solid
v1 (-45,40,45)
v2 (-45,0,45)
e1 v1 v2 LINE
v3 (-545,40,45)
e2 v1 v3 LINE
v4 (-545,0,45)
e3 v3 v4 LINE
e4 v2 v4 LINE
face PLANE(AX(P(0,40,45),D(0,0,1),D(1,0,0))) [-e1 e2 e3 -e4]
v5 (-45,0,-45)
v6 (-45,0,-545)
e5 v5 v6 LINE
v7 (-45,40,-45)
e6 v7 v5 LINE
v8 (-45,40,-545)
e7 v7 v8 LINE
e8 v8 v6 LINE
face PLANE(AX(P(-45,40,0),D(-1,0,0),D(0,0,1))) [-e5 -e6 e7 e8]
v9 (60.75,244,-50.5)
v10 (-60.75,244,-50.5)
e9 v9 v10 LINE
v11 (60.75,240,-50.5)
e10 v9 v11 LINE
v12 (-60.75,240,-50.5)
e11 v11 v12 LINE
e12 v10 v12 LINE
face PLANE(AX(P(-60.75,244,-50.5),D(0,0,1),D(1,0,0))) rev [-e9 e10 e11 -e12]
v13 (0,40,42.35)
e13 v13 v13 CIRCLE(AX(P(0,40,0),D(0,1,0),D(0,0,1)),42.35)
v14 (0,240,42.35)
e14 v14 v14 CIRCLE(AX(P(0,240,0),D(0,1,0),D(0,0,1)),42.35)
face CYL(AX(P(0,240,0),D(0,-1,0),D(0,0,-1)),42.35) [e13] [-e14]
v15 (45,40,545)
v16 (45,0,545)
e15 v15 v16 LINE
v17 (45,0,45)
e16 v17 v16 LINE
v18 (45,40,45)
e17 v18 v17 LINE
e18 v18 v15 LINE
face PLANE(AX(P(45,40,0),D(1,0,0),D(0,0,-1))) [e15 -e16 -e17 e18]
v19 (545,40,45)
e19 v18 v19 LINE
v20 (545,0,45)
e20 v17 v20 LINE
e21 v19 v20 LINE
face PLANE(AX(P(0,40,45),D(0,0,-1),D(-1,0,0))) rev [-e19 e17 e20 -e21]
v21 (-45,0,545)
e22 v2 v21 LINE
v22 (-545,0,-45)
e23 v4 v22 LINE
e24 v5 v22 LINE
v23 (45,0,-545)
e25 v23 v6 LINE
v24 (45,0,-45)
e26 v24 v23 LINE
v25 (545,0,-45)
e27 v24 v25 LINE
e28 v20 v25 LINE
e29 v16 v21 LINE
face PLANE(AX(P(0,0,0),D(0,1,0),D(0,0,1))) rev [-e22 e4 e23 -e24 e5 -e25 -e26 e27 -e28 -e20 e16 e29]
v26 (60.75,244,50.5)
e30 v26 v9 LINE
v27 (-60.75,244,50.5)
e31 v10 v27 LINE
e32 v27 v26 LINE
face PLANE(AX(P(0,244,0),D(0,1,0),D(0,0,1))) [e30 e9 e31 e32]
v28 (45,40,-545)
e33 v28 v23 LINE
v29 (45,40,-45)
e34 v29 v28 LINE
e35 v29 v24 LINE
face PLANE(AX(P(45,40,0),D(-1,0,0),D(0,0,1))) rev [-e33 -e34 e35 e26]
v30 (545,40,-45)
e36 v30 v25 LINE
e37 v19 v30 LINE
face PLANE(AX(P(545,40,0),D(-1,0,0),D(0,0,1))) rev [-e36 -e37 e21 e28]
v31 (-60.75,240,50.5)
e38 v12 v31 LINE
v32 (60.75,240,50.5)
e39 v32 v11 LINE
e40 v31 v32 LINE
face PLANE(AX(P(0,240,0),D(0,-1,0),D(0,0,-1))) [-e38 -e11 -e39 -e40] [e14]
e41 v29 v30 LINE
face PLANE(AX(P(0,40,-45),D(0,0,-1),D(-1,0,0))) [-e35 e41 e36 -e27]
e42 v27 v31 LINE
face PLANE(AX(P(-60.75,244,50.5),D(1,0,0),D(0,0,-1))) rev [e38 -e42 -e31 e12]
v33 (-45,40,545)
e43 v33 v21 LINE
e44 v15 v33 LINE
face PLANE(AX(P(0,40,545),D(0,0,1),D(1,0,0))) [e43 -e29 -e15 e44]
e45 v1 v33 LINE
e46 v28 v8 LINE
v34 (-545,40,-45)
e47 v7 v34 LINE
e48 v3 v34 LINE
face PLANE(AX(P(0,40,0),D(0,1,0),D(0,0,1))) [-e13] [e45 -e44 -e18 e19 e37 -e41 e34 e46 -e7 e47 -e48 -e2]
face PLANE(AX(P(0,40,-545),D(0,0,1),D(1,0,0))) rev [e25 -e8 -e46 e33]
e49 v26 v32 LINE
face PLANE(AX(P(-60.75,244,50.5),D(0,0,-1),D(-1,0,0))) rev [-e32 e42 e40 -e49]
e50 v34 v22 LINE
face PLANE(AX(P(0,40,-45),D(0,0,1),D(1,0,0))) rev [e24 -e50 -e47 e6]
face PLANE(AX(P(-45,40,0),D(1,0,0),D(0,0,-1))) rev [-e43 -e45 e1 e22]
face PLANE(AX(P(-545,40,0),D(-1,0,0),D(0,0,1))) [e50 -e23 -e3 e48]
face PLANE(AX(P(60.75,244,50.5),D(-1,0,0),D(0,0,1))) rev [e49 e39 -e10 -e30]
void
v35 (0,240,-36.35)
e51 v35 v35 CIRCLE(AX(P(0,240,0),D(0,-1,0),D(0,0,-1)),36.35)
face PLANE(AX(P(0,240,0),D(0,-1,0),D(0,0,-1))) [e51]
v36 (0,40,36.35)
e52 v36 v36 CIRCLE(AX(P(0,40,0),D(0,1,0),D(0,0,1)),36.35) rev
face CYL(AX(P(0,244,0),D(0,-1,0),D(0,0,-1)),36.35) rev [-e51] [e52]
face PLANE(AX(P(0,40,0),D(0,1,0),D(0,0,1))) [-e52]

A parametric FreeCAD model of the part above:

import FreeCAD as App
import Part
import Sketcher

V = App.Vector

doc = App.newDocument("Part")
params = doc.addObject("Spreadsheet::Sheet", "Params")
for row, (alias, value) in enumerate([
    ("sketch1_width", "500 mm"),
    ("sketch1_width2", "90 mm"),
    ("pad1_length", "40 mm"),
    ("sketch2_diameter", "84.7 mm"),
    ("pad2_length", "200 mm"),
    ("sketch3_diameter", "78.7 mm"),
    ("pocket1_length", "200 mm"),
    ("sketch4_diameter", "78.7 mm"),
    ("sketch4_diameter2", "72.7 mm"),
    ("pad3_length", "4 mm"),
    ("pad3_length2", "200 mm"),
    ("sketch5_height", "101 mm"),
    ("sketch5_width", "121.5 mm"),
    ("pad4_length", "4 mm"),
], start=1):
    params.set(f"A{row}", alias)
    params.set(f"B{row}", "=" + value)
    params.setAlias(f"B{row}", alias)

body = doc.addObject("PartDesign::Body", "Body")

# Sketch on XZ plane
sketch1 = body.newObject("Sketcher::SketchObject", "Sketch")
sketch1.AttachmentSupport = (doc.getObject("XZ_Plane"), [""])
sketch1.MapMode = "FlatFace"
sketch1.addGeometry(Part.LineSegment(V(45, 545, 0), V(45, 45, 0)), False)
sketch1.addGeometry(Part.LineSegment(V(45, 45, 0), V(545, 45, 0)), False)
sketch1.addGeometry(Part.LineSegment(V(545, 45, 0), V(545, -45, 0)), False)
sketch1.addGeometry(Part.LineSegment(V(545, -45, 0), V(45, -45, 0)), False)
sketch1.addGeometry(Part.LineSegment(V(45, -45, 0), V(45, -545, 0)), False)
sketch1.addGeometry(Part.LineSegment(V(45, -545, 0), V(-45, -545, 0)), False)
sketch1.addGeometry(Part.LineSegment(V(-45, -545, 0), V(-45, -45, 0)), False)
sketch1.addGeometry(Part.LineSegment(V(-45, -45, 0), V(-545, -45, 0)), False)
sketch1.addGeometry(Part.LineSegment(V(-545, -45, 0), V(-545, 45, 0)), False)
sketch1.addGeometry(Part.LineSegment(V(-545, 45, 0), V(-45, 45, 0)), False)
sketch1.addGeometry(Part.LineSegment(V(-45, 45, 0), V(-45, 545, 0)), False)
sketch1.addGeometry(Part.LineSegment(V(-45, 545, 0), V(45, 545, 0)), False)
sketch1.addConstraint(Sketcher.Constraint("Coincident", 0, 2, 1, 1))
sketch1.addConstraint(Sketcher.Constraint("Coincident", 1, 2, 2, 1))
sketch1.addConstraint(Sketcher.Constraint("Coincident", 2, 2, 3, 1))
sketch1.addConstraint(Sketcher.Constraint("Coincident", 3, 2, 4, 1))
sketch1.addConstraint(Sketcher.Constraint("Coincident", 4, 2, 5, 1))
sketch1.addConstraint(Sketcher.Constraint("Coincident", 5, 2, 6, 1))
sketch1.addConstraint(Sketcher.Constraint("Coincident", 6, 2, 7, 1))
sketch1.addConstraint(Sketcher.Constraint("Coincident", 7, 2, 8, 1))
sketch1.addConstraint(Sketcher.Constraint("Coincident", 8, 2, 9, 1))
sketch1.addConstraint(Sketcher.Constraint("Coincident", 9, 2, 10, 1))
sketch1.addConstraint(Sketcher.Constraint("Coincident", 10, 2, 11, 1))
sketch1.addConstraint(Sketcher.Constraint("Coincident", 11, 2, 0, 1))
sketch1.addConstraint(Sketcher.Constraint("Vertical", 0))
sketch1.addConstraint(Sketcher.Constraint("Horizontal", 1))
sketch1.addConstraint(Sketcher.Constraint("Vertical", 2))
sketch1.addConstraint(Sketcher.Constraint("Horizontal", 3))
sketch1.addConstraint(Sketcher.Constraint("Vertical", 4))
sketch1.addConstraint(Sketcher.Constraint("Horizontal", 5))
sketch1.addConstraint(Sketcher.Constraint("Vertical", 6))
sketch1.addConstraint(Sketcher.Constraint("Horizontal", 7))
sketch1.addConstraint(Sketcher.Constraint("Vertical", 8))
sketch1.addConstraint(Sketcher.Constraint("Horizontal", 9))
sketch1.addConstraint(Sketcher.Constraint("Vertical", 10))
sketch1.addConstraint(Sketcher.Constraint("Horizontal", 11))
sketch1.addConstraint(Sketcher.Constraint("Symmetric", 0, 2, 6, 2, -1, 1))
sketch1.addConstraint(Sketcher.Constraint("Symmetric", 2, 2, 8, 2, -1, 1))
sketch1.addConstraint(Sketcher.Constraint("Symmetric", 4, 2, 10, 2, -1, 1))
sketch1.addConstraint(Sketcher.Constraint("Symmetric", 3, 2, 6, 2, -2))
sketch1.addConstraint(Sketcher.Constraint("Equal", 9, 0))
sketch1.addConstraint(Sketcher.Constraint("Equal", 11, 2))
sketch1.addConstraint(Sketcher.Constraint("DistanceX", 1, 1, 1, 2, 500.0))
sketch1.addConstraint(Sketcher.Constraint("DistanceX", 5, 2, 5, 1, 90.0))
sketch1.setExpression("Constraints[30]", "Params.sketch1_width")
sketch1.setExpression("Constraints[31]", "Params.sketch1_width2")
pad1 = body.newObject("PartDesign::Pad", "Pad")
pad1.Profile = sketch1
pad1.setExpression("Length", "Params.pad1_length")
pad1.Reversed = True

# Sketch on XZ plane
sketch2 = body.newObject("Sketcher::SketchObject", "Sketch001")
sketch2.AttachmentSupport = (doc.getObject("XZ_Plane"), [""])
sketch2.MapMode = "FlatFace"
sketch2.AttachmentOffset = App.Placement(V(0, 0, -40), App.Rotation())
sketch2.addGeometry(Part.Circle(V(0, 0, 0), V(0, 0, 1), 42), False)
sketch2.addConstraint(Sketcher.Constraint("Coincident", 0, 3, -1, 1))
sketch2.addConstraint(Sketcher.Constraint("Diameter", 0, 84.7))
sketch2.setExpression("Constraints[1]", "Params.sketch2_diameter")
pad2 = body.newObject("PartDesign::Pad", "Pad001")
pad2.Profile = sketch2
pad2.setExpression("Length", "Params.pad2_length")
pad2.Reversed = True

# Sketch on XZ plane
sketch3 = body.newObject("Sketcher::SketchObject", "Sketch002")
sketch3.AttachmentSupport = (doc.getObject("XZ_Plane"), [""])
sketch3.MapMode = "FlatFace"
sketch3.AttachmentOffset = App.Placement(V(0, 0, -240), App.Rotation())
sketch3.addGeometry(Part.Circle(V(0, 0, 0), V(0, 0, 1), 39), False)
sketch3.addConstraint(Sketcher.Constraint("Coincident", 0, 3, -1, 1))
sketch3.addConstraint(Sketcher.Constraint("Diameter", 0, 78.7))
sketch3.setExpression("Constraints[1]", "Params.sketch3_diameter")
pocket1 = body.newObject("PartDesign::Pocket", "Pocket")
pocket1.Profile = sketch3
pocket1.setExpression("Length", "Params.pocket1_length")
pocket1.Reversed = True

# Sketch on XZ plane
sketch4 = body.newObject("Sketcher::SketchObject", "Sketch003")
sketch4.AttachmentSupport = (doc.getObject("XZ_Plane"), [""])
sketch4.MapMode = "FlatFace"
sketch4.AttachmentOffset = App.Placement(V(0, 0, -240), App.Rotation())
sketch4.addGeometry(Part.Circle(V(0, 0, 0), V(0, 0, 1), 39), False)
sketch4.addGeometry(Part.Circle(V(0, 0, 0), V(0, 0, 1), 36), False)
sketch4.addConstraint(Sketcher.Constraint("Coincident", 0, 3, -1, 1))
sketch4.addConstraint(Sketcher.Constraint("Coincident", 1, 3, -1, 1))
sketch4.addConstraint(Sketcher.Constraint("Diameter", 0, 78.7))
sketch4.addConstraint(Sketcher.Constraint("Diameter", 1, 72.7))
sketch4.setExpression("Constraints[2]", "Params.sketch4_diameter")
sketch4.setExpression("Constraints[3]", "Params.sketch4_diameter2")
pad3 = body.newObject("PartDesign::Pad", "Pad002")
pad3.Profile = sketch4
pad3.Type = "TwoLengths"
pad3.setExpression("Length", "Params.pad3_length")
pad3.setExpression("Length2", "Params.pad3_length2")
pad3.Reversed = True

# Sketch on XZ plane
sketch5 = body.newObject("Sketcher::SketchObject", "Sketch004")
sketch5.AttachmentSupport = (doc.getObject("XZ_Plane"), [""])
sketch5.MapMode = "FlatFace"
sketch5.AttachmentOffset = App.Placement(V(0, 0, -240), App.Rotation())
sketch5.addGeometry(Part.LineSegment(V(-61, -50, 0), V(-61, 50, 0)), False)
sketch5.addGeometry(Part.LineSegment(V(-61, 50, 0), V(61, 50, 0)), False)
sketch5.addGeometry(Part.LineSegment(V(61, 50, 0), V(61, -50, 0)), False)
sketch5.addGeometry(Part.LineSegment(V(61, -50, 0), V(-61, -50, 0)), False)
sketch5.addConstraint(Sketcher.Constraint("Coincident", 0, 2, 1, 1))
sketch5.addConstraint(Sketcher.Constraint("Coincident", 1, 2, 2, 1))
sketch5.addConstraint(Sketcher.Constraint("Coincident", 2, 2, 3, 1))
sketch5.addConstraint(Sketcher.Constraint("Coincident", 3, 2, 0, 1))
sketch5.addConstraint(Sketcher.Constraint("Vertical", 0))
sketch5.addConstraint(Sketcher.Constraint("Horizontal", 1))
sketch5.addConstraint(Sketcher.Constraint("Vertical", 2))
sketch5.addConstraint(Sketcher.Constraint("Horizontal", 3))
sketch5.addConstraint(Sketcher.Constraint("Symmetric", 0, 2, 2, 2, -1, 1))
sketch5.addConstraint(Sketcher.Constraint("DistanceY", 0, 1, 0, 2, 101.0))
sketch5.addConstraint(Sketcher.Constraint("DistanceX", 1, 1, 1, 2, 121.5))
sketch5.setExpression("Constraints[9]", "Params.sketch5_height")
sketch5.setExpression("Constraints[10]", "Params.sketch5_width")
pad4 = body.newObject("PartDesign::Pad", "Pad003")
pad4.Profile = sketch5
pad4.setExpression("Length", "Params.pad4_length")
pad4.Reversed = True

doc.recompute()
